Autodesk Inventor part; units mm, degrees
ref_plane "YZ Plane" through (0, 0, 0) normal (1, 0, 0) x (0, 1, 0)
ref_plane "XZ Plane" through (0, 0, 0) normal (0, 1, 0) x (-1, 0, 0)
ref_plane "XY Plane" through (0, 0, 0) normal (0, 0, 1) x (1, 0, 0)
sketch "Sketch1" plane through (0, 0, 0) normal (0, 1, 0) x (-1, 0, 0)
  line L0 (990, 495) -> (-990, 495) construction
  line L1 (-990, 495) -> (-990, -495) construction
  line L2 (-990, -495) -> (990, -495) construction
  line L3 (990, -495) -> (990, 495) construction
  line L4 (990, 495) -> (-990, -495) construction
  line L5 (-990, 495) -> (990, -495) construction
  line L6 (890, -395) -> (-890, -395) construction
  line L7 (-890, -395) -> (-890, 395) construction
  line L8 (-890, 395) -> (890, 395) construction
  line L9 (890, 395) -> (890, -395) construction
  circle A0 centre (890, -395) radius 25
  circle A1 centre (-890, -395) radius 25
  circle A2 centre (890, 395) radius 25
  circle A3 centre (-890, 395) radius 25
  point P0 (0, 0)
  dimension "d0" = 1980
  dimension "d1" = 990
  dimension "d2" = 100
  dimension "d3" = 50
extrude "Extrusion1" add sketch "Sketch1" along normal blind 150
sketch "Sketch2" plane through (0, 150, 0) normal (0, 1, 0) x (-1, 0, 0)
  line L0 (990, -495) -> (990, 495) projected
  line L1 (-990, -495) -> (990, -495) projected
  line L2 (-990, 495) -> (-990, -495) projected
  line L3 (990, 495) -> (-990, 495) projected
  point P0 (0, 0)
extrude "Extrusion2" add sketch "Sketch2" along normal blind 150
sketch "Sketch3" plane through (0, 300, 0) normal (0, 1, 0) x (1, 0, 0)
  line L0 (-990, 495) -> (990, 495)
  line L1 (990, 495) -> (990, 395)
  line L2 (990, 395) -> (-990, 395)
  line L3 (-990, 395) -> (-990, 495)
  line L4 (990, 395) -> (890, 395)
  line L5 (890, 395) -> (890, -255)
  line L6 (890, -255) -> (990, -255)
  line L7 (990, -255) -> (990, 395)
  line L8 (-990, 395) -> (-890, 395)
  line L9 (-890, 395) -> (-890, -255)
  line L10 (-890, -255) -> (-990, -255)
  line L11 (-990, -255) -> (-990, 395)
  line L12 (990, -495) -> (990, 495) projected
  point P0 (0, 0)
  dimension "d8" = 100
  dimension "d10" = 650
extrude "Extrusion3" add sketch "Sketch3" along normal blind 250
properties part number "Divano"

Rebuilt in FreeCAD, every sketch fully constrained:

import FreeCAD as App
import Part
import Sketcher

V = App.Vector


def add_polygon(sketch, points):
    """Adds a closed chain of lines whose ends are joined by coincident constraints."""
    first, n = sketch.GeometryCount, len(points)
    for a, b in zip(points, points[1:] + points[:1]):
        sketch.addGeometry(Part.LineSegment(App.Vector(*a, 0), App.Vector(*b, 0)), False)
    for i in range(n):
        sketch.addConstraint(Sketcher.Constraint("Coincident", first + i, 2, first + (i + 1) % n, 1))

doc = App.newDocument("Part")
params = doc.addObject("Spreadsheet::Sheet", "Params")
for row, (alias, value) in enumerate([
    ("sketch1_diameter", "50 mm"),
    ("pad1_length", "150 mm"),
    ("sketch2_width", "1980 mm"),
    ("sketch2_height", "990 mm"),
    ("pad2_length", "150 mm"),
    ("sketch3_width", "100 mm"),
    ("sketch3_height", "650 mm"),
    ("sketch3_width2", "1980 mm"),
    ("pad3_length", "250 mm"),
], start=1):
    params.set(f"A{row}", alias)
    params.set(f"B{row}", "=" + value)
    params.setAlias(f"B{row}", alias)

body = doc.addObject("PartDesign::Body", "Body")
body.AllowCompound = True

sketch1 = body.newObject("Sketcher::SketchObject", "Sketch")
sketch1.AttachmentSupport = (doc.getObject("XZ_Plane"), [""])
sketch1.MapMode = "FlatFace"
sketch1.addGeometry([
    Part.Circle(V(-890, -395, 0), V(0, 0, 1), 25),
    Part.Circle(V(890, -395, 0), V(0, 0, 1), 25),
    Part.Circle(V(-890, 395, 0), V(0, 0, 1), 25),
    Part.Circle(V(890, 395, 0), V(0, 0, 1), 25),
], False)
sketch1.addConstraint([
    Sketcher.Constraint("Equal", 0, 1),
    Sketcher.Constraint("Equal", 1, 2),
    Sketcher.Constraint("Equal", 2, 3),
    Sketcher.Constraint("Symmetric", 1, 3, 2, 3, -1, 1),
    Sketcher.Constraint("Symmetric", 0, 3, 3, 3, -1, 1),
    Sketcher.Constraint("Symmetric", 0, 3, 1, 3, -2),
    Sketcher.Constraint("Diameter", 0, 50.0),
    Sketcher.Constraint("DistanceX", 0, 3, -1, 1, 890.0),
    Sketcher.Constraint("DistanceY", 0, 3, -1, 1, 395.0),
])
sketch1.setExpression("Constraints[6]", "Params.sketch1_diameter")
pad1 = body.newObject("PartDesign::Pad", "Pad")
pad1.Profile = sketch1
pad1.setExpression("Length", "Params.pad1_length")
pad1.Reversed = True

sketch2 = body.newObject("Sketcher::SketchObject", "Sketch001")
sketch2.AttachmentSupport = (doc.getObject("XZ_Plane"), [""])
sketch2.MapMode = "FlatFace"
sketch2.AttachmentOffset = App.Placement(V(0, 0, -150), App.Rotation())
add_polygon(sketch2, [(990, -495), (-990, -495), (-990, 495), (990, 495)])
sketch2.addConstraint([
    Sketcher.Constraint("Horizontal", 0),
    Sketcher.Constraint("Vertical", 1),
    Sketcher.Constraint("Horizontal", 2),
    Sketcher.Constraint("Vertical", 3),
    Sketcher.Constraint("Symmetric", 0, 2, 2, 2, -1, 1),
    Sketcher.Constraint("DistanceX", 0, 2, 0, 1, 1980.0),
    Sketcher.Constraint("DistanceY", 1, 1, 1, 2, 990.0),
])
sketch2.setExpression("Constraints[9]", "Params.sketch2_width")
sketch2.setExpression("Constraints[10]", "Params.sketch2_height")
pad2 = body.newObject("PartDesign::Pad", "Pad001")
pad2.Profile = sketch2
pad2.setExpression("Length", "Params.pad2_length")
pad2.Reversed = True

sketch3 = body.newObject("Sketcher::SketchObject", "Sketch002")
sketch3.AttachmentSupport = (doc.getObject("XZ_Plane"), [""])
sketch3.MapMode = "FlatFace"
sketch3.AttachmentOffset = App.Placement(V(0, 0, -300), App.Rotation())
add_polygon(sketch3, [(990, -495), (-990, -495), (-990, 255), (-890, 255), (-890, -395), (890, -395), (890, 255), (990, 255)])
sketch3.addConstraint([
    Sketcher.Constraint("Horizontal", 0),
    Sketcher.Constraint("Vertical", 1),
    Sketcher.Constraint("Horizontal", 2),
    Sketcher.Constraint("Vertical", 3),
    Sketcher.Constraint("Horizontal", 4),
    Sketcher.Constraint("Vertical", 5),
    Sketcher.Constraint("Horizontal", 6),
    Sketcher.Constraint("Vertical", 7),
    Sketcher.Constraint("Symmetric", 2, 2, 5, 2, -2),
    Sketcher.Constraint("Equal", 2, 6),
    Sketcher.Constraint("DistanceX", 2, 1, 2, 2, 100.0),
    Sketcher.Constraint("DistanceY", 3, 2, 3, 1, 650.0),
    Sketcher.Constraint("DistanceY", 0, 2, 3, 2, 100.0),
    Sketcher.Constraint("DistanceX", 0, 2, 0, 1, 1980.0),
    Sketcher.Constraint("DistanceY", 0, 2, -1, 1, 495.0),
])
sketch3.setExpression("Constraints[18]", "Params.sketch3_width")
sketch3.setExpression("Constraints[19]", "Params.sketch3_height")
sketch3.setExpression("Constraints[21]", "Params.sketch3_width2")
pad3 = body.newObject("PartDesign::Pad", "Pad002")
pad3.Profile = sketch3
pad3.setExpression("Length", "Params.pad3_length")
pad3.Reversed = True

doc.recompute()
